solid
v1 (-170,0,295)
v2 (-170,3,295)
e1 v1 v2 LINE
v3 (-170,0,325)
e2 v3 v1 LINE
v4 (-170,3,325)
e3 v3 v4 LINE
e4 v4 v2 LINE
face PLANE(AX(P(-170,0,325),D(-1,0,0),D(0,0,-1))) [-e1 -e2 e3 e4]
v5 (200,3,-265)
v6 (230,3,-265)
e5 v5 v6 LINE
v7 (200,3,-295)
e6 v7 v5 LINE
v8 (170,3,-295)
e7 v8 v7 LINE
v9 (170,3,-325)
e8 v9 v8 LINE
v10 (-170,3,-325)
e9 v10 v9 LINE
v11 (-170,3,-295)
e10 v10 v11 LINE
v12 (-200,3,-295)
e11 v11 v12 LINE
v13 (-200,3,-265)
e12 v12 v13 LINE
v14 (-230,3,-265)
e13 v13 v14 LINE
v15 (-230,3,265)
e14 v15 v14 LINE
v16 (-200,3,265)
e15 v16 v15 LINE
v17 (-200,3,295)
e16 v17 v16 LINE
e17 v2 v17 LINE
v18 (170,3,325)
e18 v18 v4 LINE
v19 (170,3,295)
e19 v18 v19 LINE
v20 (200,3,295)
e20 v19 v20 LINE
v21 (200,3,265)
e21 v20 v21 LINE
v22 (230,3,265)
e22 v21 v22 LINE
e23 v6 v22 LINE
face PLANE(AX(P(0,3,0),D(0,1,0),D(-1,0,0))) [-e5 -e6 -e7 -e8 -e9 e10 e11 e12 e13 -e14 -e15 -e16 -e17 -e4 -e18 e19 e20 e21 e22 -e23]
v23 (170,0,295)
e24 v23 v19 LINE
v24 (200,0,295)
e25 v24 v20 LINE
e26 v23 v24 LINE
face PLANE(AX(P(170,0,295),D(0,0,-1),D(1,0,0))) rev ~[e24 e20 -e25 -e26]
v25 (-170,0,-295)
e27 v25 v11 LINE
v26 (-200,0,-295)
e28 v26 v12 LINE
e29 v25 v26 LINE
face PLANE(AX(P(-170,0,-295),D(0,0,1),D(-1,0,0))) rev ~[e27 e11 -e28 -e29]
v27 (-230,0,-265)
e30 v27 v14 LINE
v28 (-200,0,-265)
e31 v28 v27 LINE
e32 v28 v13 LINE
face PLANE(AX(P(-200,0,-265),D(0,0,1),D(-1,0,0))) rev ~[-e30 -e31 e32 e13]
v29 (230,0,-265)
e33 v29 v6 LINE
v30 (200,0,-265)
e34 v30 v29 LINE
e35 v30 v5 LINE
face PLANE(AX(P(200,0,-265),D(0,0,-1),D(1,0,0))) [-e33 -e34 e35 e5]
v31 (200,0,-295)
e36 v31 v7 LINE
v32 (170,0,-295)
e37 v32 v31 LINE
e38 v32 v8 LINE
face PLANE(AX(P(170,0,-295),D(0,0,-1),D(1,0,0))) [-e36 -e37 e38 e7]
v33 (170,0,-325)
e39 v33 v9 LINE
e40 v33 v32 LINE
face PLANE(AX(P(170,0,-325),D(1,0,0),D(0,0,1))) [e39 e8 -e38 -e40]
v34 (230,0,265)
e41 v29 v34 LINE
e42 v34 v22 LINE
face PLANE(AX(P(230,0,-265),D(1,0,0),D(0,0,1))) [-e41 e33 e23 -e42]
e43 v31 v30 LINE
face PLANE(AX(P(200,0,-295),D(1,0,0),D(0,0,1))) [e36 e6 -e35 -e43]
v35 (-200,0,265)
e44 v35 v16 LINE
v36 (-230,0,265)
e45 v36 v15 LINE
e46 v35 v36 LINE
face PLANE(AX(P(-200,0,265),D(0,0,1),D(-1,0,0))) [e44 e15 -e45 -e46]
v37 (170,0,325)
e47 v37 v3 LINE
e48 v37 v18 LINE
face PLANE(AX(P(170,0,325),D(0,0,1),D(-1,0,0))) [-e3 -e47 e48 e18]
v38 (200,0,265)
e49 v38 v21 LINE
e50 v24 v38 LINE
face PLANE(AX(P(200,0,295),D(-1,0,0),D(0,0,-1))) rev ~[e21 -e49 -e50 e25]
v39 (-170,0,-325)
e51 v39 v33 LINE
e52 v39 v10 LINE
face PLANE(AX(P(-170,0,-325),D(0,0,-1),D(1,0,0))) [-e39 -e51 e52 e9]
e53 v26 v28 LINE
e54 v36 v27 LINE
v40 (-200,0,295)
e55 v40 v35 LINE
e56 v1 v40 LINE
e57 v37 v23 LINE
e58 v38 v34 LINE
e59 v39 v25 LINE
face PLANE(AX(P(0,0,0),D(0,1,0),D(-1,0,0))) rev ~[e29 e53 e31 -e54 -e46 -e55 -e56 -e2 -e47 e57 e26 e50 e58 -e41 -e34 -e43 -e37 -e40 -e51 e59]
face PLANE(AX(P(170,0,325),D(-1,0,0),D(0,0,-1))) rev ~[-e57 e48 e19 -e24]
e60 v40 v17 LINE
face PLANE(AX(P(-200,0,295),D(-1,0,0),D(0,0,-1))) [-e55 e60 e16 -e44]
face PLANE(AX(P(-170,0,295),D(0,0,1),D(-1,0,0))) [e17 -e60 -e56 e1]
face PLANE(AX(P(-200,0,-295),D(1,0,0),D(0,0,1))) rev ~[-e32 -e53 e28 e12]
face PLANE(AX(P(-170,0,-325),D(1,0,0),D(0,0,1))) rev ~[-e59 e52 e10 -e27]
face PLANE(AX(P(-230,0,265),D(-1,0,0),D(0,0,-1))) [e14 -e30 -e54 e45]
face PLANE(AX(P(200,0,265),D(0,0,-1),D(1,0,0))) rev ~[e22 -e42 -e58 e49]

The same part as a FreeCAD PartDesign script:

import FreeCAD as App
import Part
import Sketcher
Q = App.Units.Quantity

doc = App.newDocument("Part")
body = doc.addObject("PartDesign::Body", "Body")

# Sketch on XZ plane
sketch1 = body.newObject("Sketcher::SketchObject", "Sketch")
sketch1.AttachmentSupport = (doc.getObject("XZ_Plane"), [""])
sketch1.MapMode = "FlatFace"
sketch1.addGeometry(Part.LineSegment(App.Vector(170, -325, 0), App.Vector(-170, -325, 0)), False)
sketch1.addGeometry(Part.LineSegment(App.Vector(-170, -325, 0), App.Vector(-170, -295, 0)), False)
sketch1.addGeometry(Part.LineSegment(App.Vector(-170, -295, 0), App.Vector(-200, -295, 0)), False)
sketch1.addGeometry(Part.LineSegment(App.Vector(-200, -295, 0), App.Vector(-200, -265, 0)), False)
sketch1.addGeometry(Part.LineSegment(App.Vector(-200, -265, 0), App.Vector(-230, -265, 0)), False)
sketch1.addGeometry(Part.LineSegment(App.Vector(-230, -265, 0), App.Vector(-230, 265, 0)), False)
sketch1.addGeometry(Part.LineSegment(App.Vector(-230, 265, 0), App.Vector(-200, 265, 0)), False)
sketch1.addGeometry(Part.LineSegment(App.Vector(-200, 265, 0), App.Vector(-200, 295, 0)), False)
sketch1.addGeometry(Part.LineSegment(App.Vector(-200, 295, 0), App.Vector(-170, 295, 0)), False)
sketch1.addGeometry(Part.LineSegment(App.Vector(-170, 295, 0), App.Vector(-170, 325, 0)), False)
sketch1.addGeometry(Part.LineSegment(App.Vector(-170, 325, 0), App.Vector(170, 325, 0)), False)
sketch1.addGeometry(Part.LineSegment(App.Vector(170, 325, 0), App.Vector(170, 295, 0)), False)
sketch1.addGeometry(Part.LineSegment(App.Vector(170, 295, 0), App.Vector(200, 295, 0)), False)
sketch1.addGeometry(Part.LineSegment(App.Vector(200, 295, 0), App.Vector(200, 265, 0)), False)
sketch1.addGeometry(Part.LineSegment(App.Vector(200, 265, 0), App.Vector(230, 265, 0)), False)
sketch1.addGeometry(Part.LineSegment(App.Vector(230, 265, 0), App.Vector(230, -265, 0)), False)
sketch1.addGeometry(Part.LineSegment(App.Vector(230, -265, 0), App.Vector(200, -265, 0)), False)
sketch1.addGeometry(Part.LineSegment(App.Vector(200, -265, 0), App.Vector(200, -295, 0)), False)
sketch1.addGeometry(Part.LineSegment(App.Vector(200, -295, 0), App.Vector(170, -295, 0)), False)
sketch1.addGeometry(Part.LineSegment(App.Vector(170, -295, 0), App.Vector(170, -325, 0)), False)
sketch1.addConstraint(Sketcher.Constraint("Coincident", 0, 2, 1, 1))
sketch1.addConstraint(Sketcher.Constraint("Coincident", 1, 2, 2, 1))
sketch1.addConstraint(Sketcher.Constraint("Coincident", 2, 2, 3, 1))
sketch1.addConstraint(Sketcher.Constraint("Coincident", 3, 2, 4, 1))
sketch1.addConstraint(Sketcher.Constraint("Coincident", 4, 2, 5, 1))
sketch1.addConstraint(Sketcher.Constraint("Coincident", 5, 2, 6, 1))
sketch1.addConstraint(Sketcher.Constraint("Coincident", 6, 2, 7, 1))
sketch1.addConstraint(Sketcher.Constraint("Coincident", 7, 2, 8, 1))
sketch1.addConstraint(Sketcher.Constraint("Coincident", 8, 2, 9, 1))
sketch1.addConstraint(Sketcher.Constraint("Coincident", 9, 2, 10, 1))
sketch1.addConstraint(Sketcher.Constraint("Coincident", 10, 2, 11, 1))
sketch1.addConstraint(Sketcher.Constraint("Coincident", 11, 2, 12, 1))
sketch1.addConstraint(Sketcher.Constraint("Coincident", 12, 2, 13, 1))
sketch1.addConstraint(Sketcher.Constraint("Coincident", 13, 2, 14, 1))
sketch1.addConstraint(Sketcher.Constraint("Coincident", 14, 2, 15, 1))
sketch1.addConstraint(Sketcher.Constraint("Coincident", 15, 2, 16, 1))
sketch1.addConstraint(Sketcher.Constraint("Coincident", 16, 2, 17, 1))
sketch1.addConstraint(Sketcher.Constraint("Coincident", 17, 2, 18, 1))
sketch1.addConstraint(Sketcher.Constraint("Coincident", 18, 2, 19, 1))
sketch1.addConstraint(Sketcher.Constraint("Coincident", 19, 2, 0, 1))
sketch1.addConstraint(Sketcher.Constraint("Horizontal", 0))
sketch1.addConstraint(Sketcher.Constraint("Vertical", 1))
sketch1.addConstraint(Sketcher.Constraint("Horizontal", 2))
sketch1.addConstraint(Sketcher.Constraint("Vertical", 3))
sketch1.addConstraint(Sketcher.Constraint("Horizontal", 4))
sketch1.addConstraint(Sketcher.Constraint("Vertical", 5))
sketch1.addConstraint(Sketcher.Constraint("Horizontal", 6))
sketch1.addConstraint(Sketcher.Constraint("Vertical", 7))
sketch1.addConstraint(Sketcher.Constraint("Horizontal", 8))
sketch1.addConstraint(Sketcher.Constraint("Vertical", 9))
sketch1.addConstraint(Sketcher.Constraint("Horizontal", 10))
sketch1.addConstraint(Sketcher.Constraint("Vertical", 11))
sketch1.addConstraint(Sketcher.Constraint("Horizontal", 12))
sketch1.addConstraint(Sketcher.Constraint("Vertical", 13))
sketch1.addConstraint(Sketcher.Constraint("Horizontal", 14))
sketch1.addConstraint(Sketcher.Constraint("Vertical", 15))
sketch1.addConstraint(Sketcher.Constraint("Horizontal", 16))
sketch1.addConstraint(Sketcher.Constraint("Vertical", 17))
sketch1.addConstraint(Sketcher.Constraint("Horizontal", 18))
sketch1.addConstraint(Sketcher.Constraint("Vertical", 19))
sketch1.addConstraint(Sketcher.Constraint("Symmetric", 0, 2, 10, 2, -1, 1))
sketch1.addConstraint(Sketcher.Constraint("Symmetric", 2, 2, 12, 2, -1, 1))
sketch1.addConstraint(Sketcher.Constraint("Symmetric", 4, 2, 14, 2, -1, 1))
sketch1.addConstraint(Sketcher.Constraint("Symmetric", 6, 2, 16, 2, -1, 1))
sketch1.addConstraint(Sketcher.Constraint("Symmetric", 8, 2, 18, 2, -1, 1))
sketch1.addConstraint(Sketcher.Constraint("Symmetric", 8, 2, 11, 2, -2))
sketch1.addConstraint(Sketcher.Constraint("Symmetric", 6, 2, 13, 2, -2))
sketch1.addConstraint(Sketcher.Constraint("Equal", 2, 4))
sketch1.addConstraint(Sketcher.Constraint("Equal", 18, 1))
sketch1.addConstraint(Sketcher.Constraint("Equal", 1, 3))
sketch1.addConstraint(Sketcher.Constraint("DistanceX", 2, 2, 2, 1, Q("30 mm")))
sketch1.addConstraint(Sketcher.Constraint("DistanceX", 4, 2, 15, 2, Q("460 mm")))
sketch1.addConstraint(Sketcher.Constraint("DistanceY", 5, 1, 5, 2, Q("530 mm")))
pad1 = body.newObject("PartDesign::Pad", "Pad")
pad1.Profile = sketch1
pad1.Length = 3
pad1.Reversed = True

doc.recompute()
